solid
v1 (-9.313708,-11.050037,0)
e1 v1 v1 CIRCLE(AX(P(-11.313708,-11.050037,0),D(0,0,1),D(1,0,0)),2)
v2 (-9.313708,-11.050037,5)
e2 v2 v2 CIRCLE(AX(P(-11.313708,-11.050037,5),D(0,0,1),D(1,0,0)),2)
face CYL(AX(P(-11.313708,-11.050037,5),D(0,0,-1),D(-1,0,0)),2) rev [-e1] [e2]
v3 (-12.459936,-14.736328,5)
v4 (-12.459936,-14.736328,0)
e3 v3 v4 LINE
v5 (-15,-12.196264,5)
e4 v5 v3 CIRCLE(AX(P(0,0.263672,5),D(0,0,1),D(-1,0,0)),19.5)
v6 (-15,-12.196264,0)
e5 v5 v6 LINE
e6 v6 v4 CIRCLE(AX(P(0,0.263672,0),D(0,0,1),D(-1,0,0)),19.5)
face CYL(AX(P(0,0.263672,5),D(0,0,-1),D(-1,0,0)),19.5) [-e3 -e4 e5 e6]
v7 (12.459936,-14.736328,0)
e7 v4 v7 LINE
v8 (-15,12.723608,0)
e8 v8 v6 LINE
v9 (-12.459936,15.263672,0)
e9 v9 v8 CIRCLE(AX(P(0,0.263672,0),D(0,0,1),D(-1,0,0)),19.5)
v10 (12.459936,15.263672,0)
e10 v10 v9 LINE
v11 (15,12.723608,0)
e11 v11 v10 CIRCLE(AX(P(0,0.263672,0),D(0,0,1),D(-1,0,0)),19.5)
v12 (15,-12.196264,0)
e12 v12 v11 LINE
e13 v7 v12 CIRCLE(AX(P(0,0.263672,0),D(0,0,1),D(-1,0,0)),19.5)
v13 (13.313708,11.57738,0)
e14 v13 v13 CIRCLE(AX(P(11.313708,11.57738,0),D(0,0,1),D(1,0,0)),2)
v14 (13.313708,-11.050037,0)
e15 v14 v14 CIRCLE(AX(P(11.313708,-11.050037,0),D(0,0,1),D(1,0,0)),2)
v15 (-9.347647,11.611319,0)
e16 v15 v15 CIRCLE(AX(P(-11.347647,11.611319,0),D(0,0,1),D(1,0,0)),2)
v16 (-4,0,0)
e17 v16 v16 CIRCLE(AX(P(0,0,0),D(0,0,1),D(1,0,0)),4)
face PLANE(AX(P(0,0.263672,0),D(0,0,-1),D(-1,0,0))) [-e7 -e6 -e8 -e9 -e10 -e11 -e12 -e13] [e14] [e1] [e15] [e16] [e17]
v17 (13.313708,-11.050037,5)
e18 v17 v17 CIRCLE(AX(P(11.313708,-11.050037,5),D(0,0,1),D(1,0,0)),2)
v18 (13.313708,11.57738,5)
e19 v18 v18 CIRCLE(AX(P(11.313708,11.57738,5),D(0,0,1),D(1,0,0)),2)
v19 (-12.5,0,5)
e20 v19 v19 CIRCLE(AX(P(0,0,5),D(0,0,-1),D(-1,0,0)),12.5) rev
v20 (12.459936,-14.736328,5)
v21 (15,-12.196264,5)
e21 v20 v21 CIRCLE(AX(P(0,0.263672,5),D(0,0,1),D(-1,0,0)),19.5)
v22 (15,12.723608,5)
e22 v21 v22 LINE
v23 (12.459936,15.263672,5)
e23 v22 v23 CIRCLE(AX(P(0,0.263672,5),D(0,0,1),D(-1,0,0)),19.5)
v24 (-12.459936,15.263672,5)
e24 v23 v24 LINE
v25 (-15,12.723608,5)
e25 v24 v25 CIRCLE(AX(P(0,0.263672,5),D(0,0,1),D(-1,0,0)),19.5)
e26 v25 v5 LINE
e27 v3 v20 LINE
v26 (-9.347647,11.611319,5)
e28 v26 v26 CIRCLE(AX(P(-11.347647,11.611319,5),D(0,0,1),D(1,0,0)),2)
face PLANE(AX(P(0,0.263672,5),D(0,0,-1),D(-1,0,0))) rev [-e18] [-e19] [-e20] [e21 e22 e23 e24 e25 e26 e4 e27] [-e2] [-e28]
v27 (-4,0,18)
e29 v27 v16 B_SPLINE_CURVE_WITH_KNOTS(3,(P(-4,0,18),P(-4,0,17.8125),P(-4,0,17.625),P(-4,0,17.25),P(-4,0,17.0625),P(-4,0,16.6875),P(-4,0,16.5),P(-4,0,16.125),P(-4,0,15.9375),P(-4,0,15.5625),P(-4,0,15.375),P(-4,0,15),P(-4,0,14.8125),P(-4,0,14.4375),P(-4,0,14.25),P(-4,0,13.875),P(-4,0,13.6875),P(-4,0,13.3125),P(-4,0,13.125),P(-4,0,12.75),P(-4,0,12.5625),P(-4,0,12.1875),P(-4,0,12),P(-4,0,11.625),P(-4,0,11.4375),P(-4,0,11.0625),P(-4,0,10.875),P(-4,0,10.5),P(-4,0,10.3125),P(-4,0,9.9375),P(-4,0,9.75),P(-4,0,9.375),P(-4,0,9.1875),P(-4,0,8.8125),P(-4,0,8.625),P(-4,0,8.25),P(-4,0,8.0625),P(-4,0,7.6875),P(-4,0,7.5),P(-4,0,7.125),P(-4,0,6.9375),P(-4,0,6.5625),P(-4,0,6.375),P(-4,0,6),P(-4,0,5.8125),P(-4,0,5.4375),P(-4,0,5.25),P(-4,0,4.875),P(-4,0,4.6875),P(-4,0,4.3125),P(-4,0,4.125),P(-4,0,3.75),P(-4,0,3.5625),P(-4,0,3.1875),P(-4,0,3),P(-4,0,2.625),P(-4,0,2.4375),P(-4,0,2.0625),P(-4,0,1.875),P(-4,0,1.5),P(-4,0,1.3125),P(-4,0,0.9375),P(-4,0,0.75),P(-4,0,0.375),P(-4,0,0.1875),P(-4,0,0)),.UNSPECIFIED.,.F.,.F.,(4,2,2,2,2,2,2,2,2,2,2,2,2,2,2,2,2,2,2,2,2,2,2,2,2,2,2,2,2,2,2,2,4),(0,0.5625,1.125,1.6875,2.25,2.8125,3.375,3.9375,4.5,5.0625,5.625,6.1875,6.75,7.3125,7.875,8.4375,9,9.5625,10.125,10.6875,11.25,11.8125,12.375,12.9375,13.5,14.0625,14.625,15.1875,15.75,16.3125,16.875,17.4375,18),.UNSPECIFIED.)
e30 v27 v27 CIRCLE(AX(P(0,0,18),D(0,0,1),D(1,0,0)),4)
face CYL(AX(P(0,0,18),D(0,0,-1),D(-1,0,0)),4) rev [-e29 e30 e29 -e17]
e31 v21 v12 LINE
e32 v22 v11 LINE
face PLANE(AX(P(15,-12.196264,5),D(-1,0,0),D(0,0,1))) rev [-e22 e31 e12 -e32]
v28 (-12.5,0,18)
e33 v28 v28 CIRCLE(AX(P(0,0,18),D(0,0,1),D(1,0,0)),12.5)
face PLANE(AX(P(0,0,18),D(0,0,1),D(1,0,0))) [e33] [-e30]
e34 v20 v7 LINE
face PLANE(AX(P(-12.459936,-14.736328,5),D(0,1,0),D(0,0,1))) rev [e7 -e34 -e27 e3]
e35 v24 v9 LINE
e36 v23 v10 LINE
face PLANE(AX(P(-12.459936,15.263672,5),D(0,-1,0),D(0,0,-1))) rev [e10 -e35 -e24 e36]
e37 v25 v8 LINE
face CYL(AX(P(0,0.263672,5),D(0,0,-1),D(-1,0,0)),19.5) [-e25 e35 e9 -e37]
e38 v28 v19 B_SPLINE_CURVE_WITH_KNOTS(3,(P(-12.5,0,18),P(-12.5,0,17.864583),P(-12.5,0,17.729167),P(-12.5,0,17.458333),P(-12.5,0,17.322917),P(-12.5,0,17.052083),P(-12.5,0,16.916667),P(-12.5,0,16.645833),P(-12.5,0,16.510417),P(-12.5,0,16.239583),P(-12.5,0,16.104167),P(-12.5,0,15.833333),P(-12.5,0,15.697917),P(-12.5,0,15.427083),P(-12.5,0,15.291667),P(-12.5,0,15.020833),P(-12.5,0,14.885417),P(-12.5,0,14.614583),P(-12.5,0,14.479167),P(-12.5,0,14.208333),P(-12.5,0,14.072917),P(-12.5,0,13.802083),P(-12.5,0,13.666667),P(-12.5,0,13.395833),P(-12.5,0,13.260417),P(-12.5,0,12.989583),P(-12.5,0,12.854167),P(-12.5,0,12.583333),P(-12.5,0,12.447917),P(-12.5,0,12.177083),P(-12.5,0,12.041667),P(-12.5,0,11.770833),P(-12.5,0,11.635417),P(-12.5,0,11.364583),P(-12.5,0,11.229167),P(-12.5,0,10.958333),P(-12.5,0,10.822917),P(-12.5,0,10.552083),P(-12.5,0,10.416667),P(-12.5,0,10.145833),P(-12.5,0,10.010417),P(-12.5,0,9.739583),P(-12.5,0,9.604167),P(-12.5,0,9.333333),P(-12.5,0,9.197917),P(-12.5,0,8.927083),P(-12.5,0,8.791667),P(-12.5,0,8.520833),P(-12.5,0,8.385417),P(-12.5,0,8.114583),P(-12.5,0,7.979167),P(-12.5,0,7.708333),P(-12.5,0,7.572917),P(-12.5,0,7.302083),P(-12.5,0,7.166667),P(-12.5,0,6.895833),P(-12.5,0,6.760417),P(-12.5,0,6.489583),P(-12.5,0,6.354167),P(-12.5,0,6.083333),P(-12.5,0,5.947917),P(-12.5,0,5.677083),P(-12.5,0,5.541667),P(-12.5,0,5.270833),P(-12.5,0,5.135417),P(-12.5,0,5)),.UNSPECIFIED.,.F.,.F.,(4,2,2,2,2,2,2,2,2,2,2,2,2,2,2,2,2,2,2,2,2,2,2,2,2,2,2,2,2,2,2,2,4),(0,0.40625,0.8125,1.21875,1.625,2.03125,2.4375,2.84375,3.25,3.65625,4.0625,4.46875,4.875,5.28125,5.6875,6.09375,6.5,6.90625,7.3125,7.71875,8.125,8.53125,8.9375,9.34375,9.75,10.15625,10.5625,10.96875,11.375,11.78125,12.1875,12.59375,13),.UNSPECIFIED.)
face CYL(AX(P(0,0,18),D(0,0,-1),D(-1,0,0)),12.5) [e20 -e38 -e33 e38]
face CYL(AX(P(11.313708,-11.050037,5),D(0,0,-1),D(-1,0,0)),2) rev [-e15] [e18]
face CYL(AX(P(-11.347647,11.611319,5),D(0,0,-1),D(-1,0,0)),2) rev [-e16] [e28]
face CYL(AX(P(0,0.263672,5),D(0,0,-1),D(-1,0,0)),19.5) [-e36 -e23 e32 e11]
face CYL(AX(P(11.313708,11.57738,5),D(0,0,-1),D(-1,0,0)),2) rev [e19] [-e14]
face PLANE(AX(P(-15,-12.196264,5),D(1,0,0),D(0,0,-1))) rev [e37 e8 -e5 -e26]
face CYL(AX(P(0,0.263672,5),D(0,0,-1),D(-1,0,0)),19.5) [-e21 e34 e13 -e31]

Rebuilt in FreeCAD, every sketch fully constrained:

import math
import FreeCAD as App
import Part
import Sketcher
Q = App.Units.Quantity

doc = App.newDocument("Part")
body = doc.addObject("PartDesign::Body", "Body")

# Sketch on XY plane
sketch1 = body.newObject("Sketcher::SketchObject", "Sketch")
sketch1.AttachmentSupport = (doc.getObject("XY_Plane"), [""])
sketch1.MapMode = "FlatFace"
sketch1.addGeometry(Part.LineSegment(App.Vector(-12.5, -14.7, 0), App.Vector(12.5, -14.7, 0)), False)
sketch1.addGeometry(Part.ArcOfCircle(Part.Circle(App.Vector(0, 0.3, 0), App.Vector(0, 0, 1), 19.5), math.radians(-50.28), math.radians(-39.72)), False)
sketch1.addGeometry(Part.LineSegment(App.Vector(15, -12.2, 0), App.Vector(15, 12.7, 0)), False)
sketch1.addGeometry(Part.ArcOfCircle(Part.Circle(App.Vector(0, 0.3, 0), App.Vector(0, 0, 1), 19.5), math.radians(39.72), math.radians(50.28)), False)
sketch1.addGeometry(Part.LineSegment(App.Vector(12.5, 15.3, 0), App.Vector(-12.5, 15.3, 0)), False)
sketch1.addGeometry(Part.ArcOfCircle(Part.Circle(App.Vector(0, 0.3, 0), App.Vector(0, 0, 1), 19.5), math.radians(129.72), math.radians(140.28)), False)
sketch1.addGeometry(Part.LineSegment(App.Vector(-15, 12.7, 0), App.Vector(-15, -12.2, 0)), False)
sketch1.addGeometry(Part.ArcOfCircle(Part.Circle(App.Vector(0, 0.3, 0), App.Vector(0, 0, 1), 19.5), math.radians(-140.28), math.radians(-129.72)), False)
sketch1.addGeometry(Part.Circle(App.Vector(-11.3, -11.1, 0), App.Vector(0, 0, 1), 2), False)
sketch1.addGeometry(Part.Circle(App.Vector(11.3, -11.1, 0), App.Vector(0, 0, 1), 2), False)
sketch1.addGeometry(Part.Circle(App.Vector(-11.3, 11.6, 0), App.Vector(0, 0, 1), 2), False)
sketch1.addGeometry(Part.Circle(App.Vector(11.3, 11.6, 0), App.Vector(0, 0, 1), 2), False)
sketch1.addConstraint(Sketcher.Constraint("Coincident", 0, 2, 1, 1))
sketch1.addConstraint(Sketcher.Constraint("Coincident", 1, 2, 2, 1))
sketch1.addConstraint(Sketcher.Constraint("Coincident", 2, 2, 3, 1))
sketch1.addConstraint(Sketcher.Constraint("Coincident", 3, 2, 4, 1))
sketch1.addConstraint(Sketcher.Constraint("Coincident", 4, 2, 5, 1))
sketch1.addConstraint(Sketcher.Constraint("Coincident", 5, 2, 6, 1))
sketch1.addConstraint(Sketcher.Constraint("Coincident", 6, 2, 7, 1))
sketch1.addConstraint(Sketcher.Constraint("Coincident", 7, 2, 0, 1))
sketch1.addConstraint(Sketcher.Constraint("Horizontal", 0))
sketch1.addConstraint(Sketcher.Constraint("Vertical", 2))
sketch1.addConstraint(Sketcher.Constraint("Horizontal", 4))
sketch1.addConstraint(Sketcher.Constraint("Vertical", 6))
sketch1.addConstraint(Sketcher.Constraint("Coincident", 3, 3, 1, 3))
sketch1.addConstraint(Sketcher.Constraint("Coincident", 5, 3, 1, 3))
sketch1.addConstraint(Sketcher.Constraint("Coincident", 7, 3, 1, 3))
sketch1.addConstraint(Sketcher.Constraint("Equal", 1, 3))
sketch1.addConstraint(Sketcher.Constraint("Equal", 3, 5))
sketch1.addConstraint(Sketcher.Constraint("Equal", 5, 7))
sketch1.addConstraint(Sketcher.Constraint("Equal", 8, 9))
sketch1.addConstraint(Sketcher.Constraint("Equal", 9, 10))
sketch1.addConstraint(Sketcher.Constraint("Equal", 10, 11))
sketch1.addConstraint(Sketcher.Constraint("Symmetric", 8, 3, 9, 3, -2))
sketch1.addConstraint(Sketcher.Constraint("Symmetric", 2, 2, 5, 2, -2))
sketch1.addConstraint(Sketcher.Constraint("Vertical", 9, 3, 11, 3))
sketch1.addConstraint(Sketcher.Constraint("Vertical", 0, 2, 3, 2))
sketch1.addConstraint(Sketcher.Constraint("Equal", 4, 2))
sketch1.addConstraint(Sketcher.Constraint("Diameter", 8, Q("4 mm")))
sketch1.addConstraint(Sketcher.Constraint("Radius", 1, Q("19.5 mm")))
sketch1.addConstraint(Sketcher.Constraint("DistanceX", -1, 1, 1, 2, Q("15 mm")))
sketch1.addConstraint(Sketcher.Constraint("DistanceY", -1, 1, 1, 3, Q("0.263672 mm")))
sketch1.addConstraint(Sketcher.Constraint("DistanceX", 8, 3, -1, 1, Q("11.313708 mm")))
sketch1.addConstraint(Sketcher.Constraint("DistanceY", -1, 1, 10, 3, Q("11.611319 mm")))
sketch1.addConstraint(Sketcher.Constraint("DistanceY", -1, 1, 11, 3, Q("11.57738 mm")))
sketch1.addConstraint(Sketcher.Constraint("DistanceY", 8, 3, 7, 3, Q("11.313708 mm")))
sketch1.addConstraint(Sketcher.Constraint("DistanceX", 10, 3, 8, 3, Q("0.033939 mm")))
pad1 = body.newObject("PartDesign::Pad", "Pad")
pad1.Profile = sketch1
pad1.Length = 5

# Sketch on XY plane
sketch2 = body.newObject("Sketcher::SketchObject", "Sketch001")
sketch2.AttachmentSupport = (doc.getObject("XY_Plane"), [""])
sketch2.MapMode = "FlatFace"
sketch2.AttachmentOffset = App.Placement(App.Vector(0, 0, 5), App.Rotation())
sketch2.addGeometry(Part.Circle(App.Vector(0, 0, 0), App.Vector(0, 0, 1), 12.5), False)
sketch2.addGeometry(Part.Circle(App.Vector(0, 0, 0), App.Vector(0, 0, 1), 4), False)
sketch2.addConstraint(Sketcher.Constraint("Coincident", 0, 3, -1, 1))
sketch2.addConstraint(Sketcher.Constraint("Coincident", 1, 3, -1, 1))
sketch2.addConstraint(Sketcher.Constraint("Diameter", 0, Q("25 mm")))
sketch2.addConstraint(Sketcher.Constraint("Diameter", 1, Q("8 mm")))
pad2 = body.newObject("PartDesign::Pad", "Pad001")
pad2.Profile = sketch2
pad2.Length = 13

# Sketch on XY plane
sketch3 = body.newObject("Sketcher::SketchObject", "Sketch002")
sketch3.AttachmentSupport = (doc.getObject("XY_Plane"), [""])
sketch3.MapMode = "FlatFace"
sketch3.AttachmentOffset = App.Placement(App.Vector(0, 0, 5), App.Rotation())
sketch3.addGeometry(Part.Circle(App.Vector(0, 0, 0), App.Vector(0, 0, 1), 4), False)
sketch3.addConstraint(Sketcher.Constraint("Coincident", 0, 3, -1, 1))
sketch3.addConstraint(Sketcher.Constraint("Diameter", 0, Q("8 mm")))
pocket1 = body.newObject("PartDesign::Pocket", "Pocket")
pocket1.Profile = sketch3
pocket1.Type = "ThroughAll"

doc.recompute()
